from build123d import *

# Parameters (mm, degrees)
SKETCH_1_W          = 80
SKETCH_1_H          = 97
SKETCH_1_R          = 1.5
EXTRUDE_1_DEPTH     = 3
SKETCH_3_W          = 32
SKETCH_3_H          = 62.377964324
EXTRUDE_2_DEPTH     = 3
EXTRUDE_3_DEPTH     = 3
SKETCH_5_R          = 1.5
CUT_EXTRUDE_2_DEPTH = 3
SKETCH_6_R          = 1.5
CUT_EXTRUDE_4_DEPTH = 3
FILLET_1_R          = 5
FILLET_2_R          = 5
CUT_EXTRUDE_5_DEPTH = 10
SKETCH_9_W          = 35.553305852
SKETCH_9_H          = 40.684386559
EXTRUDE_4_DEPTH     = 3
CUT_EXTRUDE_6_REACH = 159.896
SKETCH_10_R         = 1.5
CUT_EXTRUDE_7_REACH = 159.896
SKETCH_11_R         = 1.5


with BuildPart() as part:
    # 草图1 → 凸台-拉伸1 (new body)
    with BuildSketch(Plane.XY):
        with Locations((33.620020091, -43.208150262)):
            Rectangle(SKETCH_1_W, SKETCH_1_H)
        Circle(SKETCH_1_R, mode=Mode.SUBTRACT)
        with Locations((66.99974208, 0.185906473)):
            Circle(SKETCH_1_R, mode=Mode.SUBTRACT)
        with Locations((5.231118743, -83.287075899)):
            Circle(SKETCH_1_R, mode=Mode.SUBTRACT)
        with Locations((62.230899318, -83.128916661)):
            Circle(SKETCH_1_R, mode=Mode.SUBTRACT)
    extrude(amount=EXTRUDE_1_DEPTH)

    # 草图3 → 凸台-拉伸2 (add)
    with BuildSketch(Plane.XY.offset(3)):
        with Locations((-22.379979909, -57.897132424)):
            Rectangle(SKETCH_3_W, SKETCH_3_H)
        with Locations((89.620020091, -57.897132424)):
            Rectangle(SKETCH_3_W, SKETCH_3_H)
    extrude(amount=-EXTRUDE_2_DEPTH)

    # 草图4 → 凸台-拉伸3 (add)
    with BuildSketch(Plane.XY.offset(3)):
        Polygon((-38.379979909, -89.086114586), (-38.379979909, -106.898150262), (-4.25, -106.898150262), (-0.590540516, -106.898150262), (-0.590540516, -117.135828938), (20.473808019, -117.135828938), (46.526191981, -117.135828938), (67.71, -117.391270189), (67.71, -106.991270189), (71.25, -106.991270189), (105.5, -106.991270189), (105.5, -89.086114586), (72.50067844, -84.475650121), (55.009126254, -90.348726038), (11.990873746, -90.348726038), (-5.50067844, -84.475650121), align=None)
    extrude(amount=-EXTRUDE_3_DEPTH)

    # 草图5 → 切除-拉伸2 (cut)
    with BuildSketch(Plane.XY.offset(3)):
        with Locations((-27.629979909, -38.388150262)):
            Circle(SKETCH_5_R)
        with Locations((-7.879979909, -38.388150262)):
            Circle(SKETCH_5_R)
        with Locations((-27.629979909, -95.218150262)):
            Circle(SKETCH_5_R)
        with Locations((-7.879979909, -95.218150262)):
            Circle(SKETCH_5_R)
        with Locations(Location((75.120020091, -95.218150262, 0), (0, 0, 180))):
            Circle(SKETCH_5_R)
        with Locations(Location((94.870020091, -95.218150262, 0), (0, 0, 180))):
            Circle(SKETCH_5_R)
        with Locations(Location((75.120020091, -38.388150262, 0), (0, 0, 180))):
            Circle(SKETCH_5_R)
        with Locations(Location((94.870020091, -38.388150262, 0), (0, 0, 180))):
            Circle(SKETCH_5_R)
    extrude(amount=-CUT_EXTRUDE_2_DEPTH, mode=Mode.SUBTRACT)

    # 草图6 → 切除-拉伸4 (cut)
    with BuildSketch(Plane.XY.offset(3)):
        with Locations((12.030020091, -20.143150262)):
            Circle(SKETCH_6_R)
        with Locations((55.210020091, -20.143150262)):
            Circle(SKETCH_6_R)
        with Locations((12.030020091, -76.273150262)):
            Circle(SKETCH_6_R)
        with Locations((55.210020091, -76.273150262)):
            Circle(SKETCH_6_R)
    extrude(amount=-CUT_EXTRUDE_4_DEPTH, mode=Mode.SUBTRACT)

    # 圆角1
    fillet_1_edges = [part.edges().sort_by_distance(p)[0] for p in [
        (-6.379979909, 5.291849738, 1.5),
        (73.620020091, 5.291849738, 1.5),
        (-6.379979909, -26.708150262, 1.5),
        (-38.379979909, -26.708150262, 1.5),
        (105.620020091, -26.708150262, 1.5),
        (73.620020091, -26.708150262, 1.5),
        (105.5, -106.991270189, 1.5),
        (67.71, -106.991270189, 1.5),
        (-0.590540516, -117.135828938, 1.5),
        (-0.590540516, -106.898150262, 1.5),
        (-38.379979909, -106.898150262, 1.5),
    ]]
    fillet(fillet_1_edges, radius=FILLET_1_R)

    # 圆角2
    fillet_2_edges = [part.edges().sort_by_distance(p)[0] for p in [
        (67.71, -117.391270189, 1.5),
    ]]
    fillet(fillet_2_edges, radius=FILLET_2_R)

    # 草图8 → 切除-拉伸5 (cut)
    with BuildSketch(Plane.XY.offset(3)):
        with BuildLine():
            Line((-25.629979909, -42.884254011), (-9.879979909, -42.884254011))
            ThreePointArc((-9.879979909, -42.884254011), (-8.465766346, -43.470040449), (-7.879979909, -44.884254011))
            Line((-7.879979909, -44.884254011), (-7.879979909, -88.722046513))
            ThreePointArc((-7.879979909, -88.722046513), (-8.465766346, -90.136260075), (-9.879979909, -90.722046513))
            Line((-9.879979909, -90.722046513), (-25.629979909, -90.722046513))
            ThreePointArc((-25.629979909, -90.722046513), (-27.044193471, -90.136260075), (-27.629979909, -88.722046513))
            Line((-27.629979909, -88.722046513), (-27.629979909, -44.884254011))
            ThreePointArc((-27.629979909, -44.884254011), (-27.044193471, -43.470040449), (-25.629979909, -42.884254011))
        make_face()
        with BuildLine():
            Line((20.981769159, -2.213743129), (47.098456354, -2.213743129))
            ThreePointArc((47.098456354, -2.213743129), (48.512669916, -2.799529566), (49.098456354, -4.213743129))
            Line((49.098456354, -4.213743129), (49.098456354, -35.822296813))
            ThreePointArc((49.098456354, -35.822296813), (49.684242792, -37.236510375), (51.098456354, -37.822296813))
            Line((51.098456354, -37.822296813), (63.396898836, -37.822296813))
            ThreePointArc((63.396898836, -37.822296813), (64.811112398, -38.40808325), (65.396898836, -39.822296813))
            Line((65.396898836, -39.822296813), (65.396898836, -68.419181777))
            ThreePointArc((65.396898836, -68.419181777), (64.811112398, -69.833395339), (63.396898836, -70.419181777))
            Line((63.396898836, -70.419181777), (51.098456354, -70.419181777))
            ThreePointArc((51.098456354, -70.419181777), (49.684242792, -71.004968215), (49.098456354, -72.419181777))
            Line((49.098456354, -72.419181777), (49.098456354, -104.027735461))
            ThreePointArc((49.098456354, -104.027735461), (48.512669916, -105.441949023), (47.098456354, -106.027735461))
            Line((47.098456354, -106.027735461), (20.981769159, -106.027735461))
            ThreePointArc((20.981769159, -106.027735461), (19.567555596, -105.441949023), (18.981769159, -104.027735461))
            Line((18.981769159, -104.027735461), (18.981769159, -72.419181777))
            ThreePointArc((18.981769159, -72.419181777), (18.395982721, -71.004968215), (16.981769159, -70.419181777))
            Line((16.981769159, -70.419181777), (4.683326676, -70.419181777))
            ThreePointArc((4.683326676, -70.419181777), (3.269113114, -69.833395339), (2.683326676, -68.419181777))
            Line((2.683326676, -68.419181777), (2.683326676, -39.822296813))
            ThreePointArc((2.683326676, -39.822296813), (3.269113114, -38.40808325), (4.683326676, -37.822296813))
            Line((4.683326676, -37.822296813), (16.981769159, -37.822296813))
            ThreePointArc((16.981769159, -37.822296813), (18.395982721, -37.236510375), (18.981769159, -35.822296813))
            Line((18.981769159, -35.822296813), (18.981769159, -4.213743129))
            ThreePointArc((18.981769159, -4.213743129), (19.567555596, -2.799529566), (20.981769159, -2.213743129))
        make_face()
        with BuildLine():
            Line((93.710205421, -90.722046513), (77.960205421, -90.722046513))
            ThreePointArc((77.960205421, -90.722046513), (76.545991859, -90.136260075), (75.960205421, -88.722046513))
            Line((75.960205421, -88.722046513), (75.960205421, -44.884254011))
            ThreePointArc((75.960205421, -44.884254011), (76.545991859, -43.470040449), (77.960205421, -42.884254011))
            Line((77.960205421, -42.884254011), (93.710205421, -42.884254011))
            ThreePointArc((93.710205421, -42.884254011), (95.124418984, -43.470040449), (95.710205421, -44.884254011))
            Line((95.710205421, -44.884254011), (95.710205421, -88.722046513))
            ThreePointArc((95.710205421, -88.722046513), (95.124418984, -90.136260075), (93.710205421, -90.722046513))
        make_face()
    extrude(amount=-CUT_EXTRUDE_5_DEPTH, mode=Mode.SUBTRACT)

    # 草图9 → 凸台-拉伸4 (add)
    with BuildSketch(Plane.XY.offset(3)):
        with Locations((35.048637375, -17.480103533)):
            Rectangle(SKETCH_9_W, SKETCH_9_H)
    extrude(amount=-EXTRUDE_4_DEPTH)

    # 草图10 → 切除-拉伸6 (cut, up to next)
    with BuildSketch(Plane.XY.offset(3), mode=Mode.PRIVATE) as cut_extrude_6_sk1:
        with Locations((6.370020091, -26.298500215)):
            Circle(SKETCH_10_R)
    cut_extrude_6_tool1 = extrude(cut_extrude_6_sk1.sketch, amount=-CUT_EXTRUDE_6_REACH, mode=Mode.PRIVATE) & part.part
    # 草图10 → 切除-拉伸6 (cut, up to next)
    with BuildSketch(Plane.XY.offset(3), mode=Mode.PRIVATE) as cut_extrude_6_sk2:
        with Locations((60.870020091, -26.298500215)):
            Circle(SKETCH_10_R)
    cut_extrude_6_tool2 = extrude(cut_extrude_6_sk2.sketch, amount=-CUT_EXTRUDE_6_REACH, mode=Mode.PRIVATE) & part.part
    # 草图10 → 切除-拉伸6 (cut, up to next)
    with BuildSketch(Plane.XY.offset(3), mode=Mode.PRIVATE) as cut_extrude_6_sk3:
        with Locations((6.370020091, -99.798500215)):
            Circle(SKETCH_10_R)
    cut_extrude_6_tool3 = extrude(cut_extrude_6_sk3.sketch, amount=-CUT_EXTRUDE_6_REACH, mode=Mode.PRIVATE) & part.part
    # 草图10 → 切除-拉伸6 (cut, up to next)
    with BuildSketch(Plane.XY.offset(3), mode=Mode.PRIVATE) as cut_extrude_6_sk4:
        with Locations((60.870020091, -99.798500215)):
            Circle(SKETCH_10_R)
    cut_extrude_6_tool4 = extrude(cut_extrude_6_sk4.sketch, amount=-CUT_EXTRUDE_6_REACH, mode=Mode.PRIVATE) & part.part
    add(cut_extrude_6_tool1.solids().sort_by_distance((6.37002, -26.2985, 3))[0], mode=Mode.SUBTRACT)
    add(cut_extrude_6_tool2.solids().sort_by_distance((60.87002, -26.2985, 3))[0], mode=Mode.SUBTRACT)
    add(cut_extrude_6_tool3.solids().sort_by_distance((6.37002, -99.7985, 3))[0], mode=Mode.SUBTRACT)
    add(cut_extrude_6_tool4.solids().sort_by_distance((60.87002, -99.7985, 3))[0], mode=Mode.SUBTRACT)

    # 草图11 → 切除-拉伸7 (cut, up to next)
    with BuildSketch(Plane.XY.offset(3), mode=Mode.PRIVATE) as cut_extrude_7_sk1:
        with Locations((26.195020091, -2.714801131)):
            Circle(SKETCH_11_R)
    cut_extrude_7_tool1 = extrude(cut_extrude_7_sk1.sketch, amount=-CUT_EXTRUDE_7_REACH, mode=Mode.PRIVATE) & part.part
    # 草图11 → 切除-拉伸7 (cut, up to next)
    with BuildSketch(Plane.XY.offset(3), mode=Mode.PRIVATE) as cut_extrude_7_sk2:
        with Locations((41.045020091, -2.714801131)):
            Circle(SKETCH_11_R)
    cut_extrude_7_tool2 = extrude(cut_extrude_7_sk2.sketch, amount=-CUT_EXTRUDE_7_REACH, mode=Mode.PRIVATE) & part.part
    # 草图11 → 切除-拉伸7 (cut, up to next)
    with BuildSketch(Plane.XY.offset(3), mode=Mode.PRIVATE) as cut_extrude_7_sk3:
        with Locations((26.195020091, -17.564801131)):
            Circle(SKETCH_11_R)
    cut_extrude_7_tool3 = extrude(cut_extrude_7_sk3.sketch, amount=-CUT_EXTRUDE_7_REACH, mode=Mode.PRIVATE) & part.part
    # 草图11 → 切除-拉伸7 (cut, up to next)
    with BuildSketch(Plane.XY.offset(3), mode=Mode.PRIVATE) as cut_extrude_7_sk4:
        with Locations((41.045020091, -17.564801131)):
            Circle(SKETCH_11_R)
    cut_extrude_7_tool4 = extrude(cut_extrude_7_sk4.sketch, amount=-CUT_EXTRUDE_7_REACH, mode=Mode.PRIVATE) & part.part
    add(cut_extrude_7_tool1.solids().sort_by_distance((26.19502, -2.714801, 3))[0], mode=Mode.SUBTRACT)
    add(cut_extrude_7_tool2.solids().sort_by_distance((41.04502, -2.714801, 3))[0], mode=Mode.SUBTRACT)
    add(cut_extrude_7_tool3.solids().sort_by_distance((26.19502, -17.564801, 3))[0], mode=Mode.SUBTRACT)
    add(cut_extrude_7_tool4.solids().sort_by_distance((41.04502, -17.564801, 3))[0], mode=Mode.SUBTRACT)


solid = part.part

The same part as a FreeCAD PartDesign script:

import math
import FreeCAD as App
import Part
import Sketcher


def edges_at(feature, points):
    """Names of the edges that pass closest to the given points."""
    edges = feature.Shape.Edges
    near = lambda p: min(range(len(edges)), key=lambda i: edges[i].distToShape(Part.Vertex(*p))[0])
    return sorted({f"Edge{near(p) + 1}" for p in points})


def add_polygon(sketch, points):
    """Adds a closed chain of lines whose ends are joined by coincident constraints."""
    first, n = sketch.GeometryCount, len(points)
    for a, b in zip(points, points[1:] + points[:1]):
        sketch.addGeometry(Part.LineSegment(App.Vector(*a, 0), App.Vector(*b, 0)), False)
    for i in range(n):
        sketch.addConstraint(Sketcher.Constraint("Coincident", first + i, 2, first + (i + 1) % n, 1))

doc = App.newDocument("Part")
body = doc.addObject("PartDesign::Body", "Body")

sketch1 = doc.addObject("Sketcher::SketchObject", "Sketch")
body.addObject(sketch1)
sketch1.AttachmentSupport = (doc.XY_Plane, [""])
sketch1.MapMode = "FlatFace"
add_polygon(sketch1, [(-6.4, 5.3), (-6.4, -91.7), (73.6, -91.7), (73.6, 5.3)])
sketch1.addGeometry(Part.Circle(App.Vector(5.2, -83.3, 0), App.Vector(0, 0, 1), 1.5), False)
sketch1.addGeometry(Part.Circle(App.Vector(62.2, -83.1, 0), App.Vector(0, 0, 1), 1.5), False)
sketch1.addGeometry(Part.Circle(App.Vector(0, 0, 0), App.Vector(0, 0, 1), 1.5), False)
sketch1.addGeometry(Part.Circle(App.Vector(67, 0.2, 0), App.Vector(0, 0, 1), 1.5), False)
sketch1.addConstraint([
    Sketcher.Constraint("Vertical", 0),
    Sketcher.Constraint("Horizontal", 1),
    Sketcher.Constraint("Vertical", 2),
    Sketcher.Constraint("Horizontal", 3),
    Sketcher.Constraint("Coincident", 6, 3, -1, 1),
    Sketcher.Constraint("Equal", 4, 5),
    Sketcher.Constraint("Equal", 5, 6),
    Sketcher.Constraint("Equal", 6, 7),
    Sketcher.Constraint("Diameter", 4, 3.0),
    Sketcher.Constraint("DistanceX", 1, 1, 1, 2, 80.0),
    Sketcher.Constraint("DistanceY", 0, 2, 0, 1, 97.0),
    Sketcher.Constraint("DistanceX", -1, 1, 5, 3, 62.230899),
    Sketcher.Constraint("DistanceX", 0, 2, 4, 3, 11.611099),
    Sketcher.Constraint("DistanceX", -1, 1, 4, 3, 5.231119),
    Sketcher.Constraint("DistanceY", 0, 2, -1, 1, 91.70815),
    Sketcher.Constraint("DistanceY", 4, 3, 5, 3, 0.158159),
    Sketcher.Constraint("DistanceX", 0, 2, 7, 3, 73.379722),
    Sketcher.Constraint("DistanceY", 4, 3, -1, 1, 83.287076),
    Sketcher.Constraint("DistanceY", -1, 1, 7, 3, 0.185906),
])
pad1 = doc.addObject("PartDesign::Pad", "Pad")
body.addObject(pad1)
pad1.Profile = sketch1
pad1.Length = 3

sketch2 = doc.addObject("Sketcher::SketchObject", "Sketch001")
body.addObject(sketch2)
sketch2.AttachmentSupport = (doc.XY_Plane, [""])
sketch2.MapMode = "FlatFace"
sketch2.AttachmentOffset = App.Placement(App.Vector(0, 0, 3), App.Rotation())
add_polygon(sketch2, [(-38, -27), (-38, -89), (-6, -89), (-6, -27)])
add_polygon(sketch2, [(74, -27), (74, -89), (106, -89), (106, -27)])
sketch2.addConstraint([
    Sketcher.Constraint("Vertical", 0),
    Sketcher.Constraint("Horizontal", 1),
    Sketcher.Constraint("Vertical", 2),
    Sketcher.Constraint("Horizontal", 3),
    Sketcher.Constraint("Vertical", 4),
    Sketcher.Constraint("Horizontal", 5),
    Sketcher.Constraint("Vertical", 6),
    Sketcher.Constraint("Horizontal", 7),
    Sketcher.Constraint("Horizontal", 1, 2, 4, 2),
    Sketcher.Constraint("Horizontal", 3, 2, 6, 2),
    Sketcher.Constraint("Equal", 3, 5),
    Sketcher.Constraint("DistanceX", 1, 1, 1, 2, 32.0),
    Sketcher.Constraint("DistanceX", 1, 2, 4, 2, 80.0),
    Sketcher.Constraint("DistanceY", 0, 2, 0, 1, 62.377964),
    Sketcher.Constraint("DistanceX", 0, 2, -1, 1, 38.37998),
    Sketcher.Constraint("DistanceY", 2, 2, -1, 1, 26.70815),
])
pad2 = doc.addObject("PartDesign::Pad", "Pad001")
body.addObject(pad2)
pad2.Profile = sketch2
pad2.Length = 3
pad2.Reversed = True

sketch3 = doc.addObject("Sketcher::SketchObject", "Sketch002")
body.addObject(sketch3)
sketch3.AttachmentSupport = (doc.XY_Plane, [""])
sketch3.MapMode = "FlatFace"
sketch3.AttachmentOffset = App.Placement(App.Vector(0, 0, 3), App.Rotation())
add_polygon(sketch3, [(-38, -89), (-38, -107), (-1, -107), (-1, -117), (47, -117), (68, -117), (68, -107), (106, -107), (106, -89), (73, -84), (55, -90), (12, -90), (-6, -84)])
sketch3.addConstraint([
    Sketcher.Constraint("Vertical", 0),
    Sketcher.Constraint("Horizontal", 1),
    Sketcher.Constraint("Vertical", 2),
    Sketcher.Constraint("Horizontal", 3),
    Sketcher.Constraint("Vertical", 5),
    Sketcher.Constraint("Horizontal", 6),
    Sketcher.Constraint("Vertical", 7),
    Sketcher.Constraint("Horizontal", 10),
    Sketcher.Constraint("Horizontal", 8, 2, 11, 2),
    Sketcher.Constraint("Horizontal", 7, 2, 12, 2),
    Sketcher.Constraint("Equal", 9, 11),
    Sketcher.Constraint("DistanceY", 5, 1, 5, 2, 10.4),
    Sketcher.Constraint("DistanceX", 6, 1, 6, 2, 37.79),
    Sketcher.Constraint("DistanceX", -1, 1, 6, 2, 105.5),
    Sketcher.Constraint("DistanceX", 1, 1, 1, 2, 37.789439),
    Sketcher.Constraint("DistanceY", 2, 2, 2, 1, 10.237679),
    Sketcher.Constraint("DistanceY", 1, 2, 11, 2, 22.4225),
    Sketcher.Constraint("DistanceX", 0, 2, 11, 2, 32.879301),
    Sketcher.Constraint("Distance", 4, 21.185348),
    Sketcher.Constraint("Distance", 8, 33.319838),
    Sketcher.Constraint("DistanceX", 3, 1, 3, 2, 47.116732),
    Sketcher.Constraint("DistanceX", 10, 2, 10, 1, 43.018253),
    Sketcher.Constraint("DistanceY", 0, 2, 0, 1, 17.812036),
    Sketcher.Constraint("DistanceY", 7, 1, 7, 2, 17.905156),
    Sketcher.Constraint("DistanceY", 0, 2, -1, 1, 106.89815),
    Sketcher.Constraint("DistanceY", 9, 2, 7, 2, 1.262611),
])
pad3 = doc.addObject("PartDesign::Pad", "Pad002")
body.addObject(pad3)
pad3.Profile = sketch3
pad3.Length = 3
pad3.Reversed = True

sketch4 = doc.addObject("Sketcher::SketchObject", "Sketch003")
body.addObject(sketch4)
sketch4.AttachmentSupport = (doc.XY_Plane, [""])
sketch4.MapMode = "FlatFace"
sketch4.AttachmentOffset = App.Placement(App.Vector(0, 0, 3), App.Rotation())
sketch4.addGeometry([
    Part.Circle(App.Vector(-27.6, -38.4, 0), App.Vector(0, 0, 1), 1.5),
    Part.Circle(App.Vector(-7.9, -38.4, 0), App.Vector(0, 0, 1), 1.5),
    Part.Circle(App.Vector(-27.6, -95.2, 0), App.Vector(0, 0, 1), 1.5),
    Part.Circle(App.Vector(-7.9, -95.2, 0), App.Vector(0, 0, 1), 1.5),
    Part.Circle(App.Vector(75.1, -95.2, 0), App.Vector(0, 0, 1), 1.5),
    Part.Circle(App.Vector(94.9, -95.2, 0), App.Vector(0, 0, 1), 1.5),
    Part.Circle(App.Vector(75.1, -38.4, 0), App.Vector(0, 0, 1), 1.5),
    Part.Circle(App.Vector(94.9, -38.4, 0), App.Vector(0, 0, 1), 1.5),
], False)
sketch4.addConstraint([
    Sketcher.Constraint("Equal", 0, 1),
    Sketcher.Constraint("Equal", 1, 2),
    Sketcher.Constraint("Equal", 2, 3),
    Sketcher.Constraint("Equal", 3, 4),
    Sketcher.Constraint("Equal", 4, 5),
    Sketcher.Constraint("Equal", 5, 6),
    Sketcher.Constraint("Equal", 6, 7),
    Sketcher.Constraint("Horizontal", 0, 3, 1, 3),
    Sketcher.Constraint("Horizontal", 2, 3, 3, 3),
    Sketcher.Constraint("Horizontal", 3, 3, 4, 3),
    Sketcher.Constraint("Horizontal", 4, 3, 5, 3),
    Sketcher.Constraint("Horizontal", 1, 3, 6, 3),
    Sketcher.Constraint("Horizontal", 6, 3, 7, 3),
    Sketcher.Constraint("Vertical", 0, 3, 2, 3),
    Sketcher.Constraint("Vertical", 1, 3, 3, 3),
    Sketcher.Constraint("Vertical", 4, 3, 6, 3),
    Sketcher.Constraint("Vertical", 5, 3, 7, 3),
    Sketcher.Constraint("Diameter", 0, 3.0),
    Sketcher.Constraint("DistanceX", 3, 3, 4, 3, 83.0),
    Sketcher.Constraint("DistanceX", 2, 3, 5, 3, 122.5),
    Sketcher.Constraint("DistanceX", 0, 3, 1, 3, 19.75),
    Sketcher.Constraint("DistanceY", 2, 3, 0, 3, 56.83),
    Sketcher.Constraint("DistanceX", 0, 3, -1, 1, 27.62998),
    Sketcher.Constraint("DistanceY", 0, 3, -1, 1, 38.38815),
])
pocket1 = doc.addObject("PartDesign::Pocket", "Pocket")
body.addObject(pocket1)
pocket1.Profile = sketch4
pocket1.Length = 3

sketch5 = doc.addObject("Sketcher::SketchObject", "Sketch004")
body.addObject(sketch5)
sketch5.AttachmentSupport = (doc.XY_Plane, [""])
sketch5.MapMode = "FlatFace"
sketch5.AttachmentOffset = App.Placement(App.Vector(0, 0, 3), App.Rotation())
sketch5.addGeometry([
    Part.Circle(App.Vector(12, -20.1, 0), App.Vector(0, 0, 1), 1.5),
    Part.Circle(App.Vector(55.2, -20.1, 0), App.Vector(0, 0, 1), 1.5),
    Part.Circle(App.Vector(12, -76.3, 0), App.Vector(0, 0, 1), 1.5),
    Part.Circle(App.Vector(55.2, -76.3, 0), App.Vector(0, 0, 1), 1.5),
], False)
sketch5.addConstraint([
    Sketcher.Constraint("Equal", 0, 1),
    Sketcher.Constraint("Equal", 1, 2),
    Sketcher.Constraint("Equal", 2, 3),
    Sketcher.Constraint("Horizontal", 0, 3, 1, 3),
    Sketcher.Constraint("Horizontal", 2, 3, 3, 3),
    Sketcher.Constraint("Vertical", 0, 3, 2, 3),
    Sketcher.Constraint("Vertical", 1, 3, 3, 3),
    Sketcher.Constraint("Diameter", 0, 3.0),
    Sketcher.Constraint("DistanceX", 0, 3, 1, 3, 43.18),
    Sketcher.Constraint("DistanceY", 2, 3, 0, 3, 56.13),
    Sketcher.Constraint("DistanceX", -1, 1, 0, 3, 12.03002),
    Sketcher.Constraint("DistanceY", 0, 3, -1, 1, 20.14315),
])
pocket2 = doc.addObject("PartDesign::Pocket", "Pocket001")
body.addObject(pocket2)
pocket2.Profile = sketch5
pocket2.Length = 3
doc.recompute()

fillet = doc.addObject("PartDesign::Fillet", "Fillet")
body.addObject(fillet)
fillet.Base = (pocket2, edges_at(pocket2, [
    (-6.38, 5.292, 1.5),
    (73.62, 5.292, 1.5),
    (-6.38, -26.708, 1.5),
    (-38.38, -26.708, 1.5),
    (105.62, -26.708, 1.5),
    (73.62, -26.708, 1.5),
    (105.5, -106.991, 1.5),
    (67.71, -106.991, 1.5),
    (-0.591, -117.136, 1.5),
    (-0.591, -106.898, 1.5),
    (-38.38, -106.898, 1.5),
]))
fillet.Radius = 5
doc.recompute()

fillet2 = doc.addObject("PartDesign::Fillet", "Fillet001")
body.addObject(fillet2)
fillet2.Base = (fillet, edges_at(fillet, [(67.71, -117.391, 1.5)]))
fillet2.Radius = 5

sketch6 = doc.addObject("Sketcher::SketchObject", "Sketch005")
body.addObject(sketch6)
sketch6.AttachmentSupport = (doc.XY_Plane, [""])
sketch6.MapMode = "FlatFace"
sketch6.AttachmentOffset = App.Placement(App.Vector(0, 0, 3), App.Rotation())
sketch6.addGeometry([
    Part.LineSegment(App.Vector(-9.9, -42.9, 0), App.Vector(-25.6, -42.9, 0)),
    Part.ArcOfCircle(Part.Circle(App.Vector(-25.6, -44.9, 0), App.Vector(0, 0, 1), 2), math.radians(90), math.radians(180)),
    Part.LineSegment(App.Vector(-27.6, -44.9, 0), App.Vector(-27.6, -88.7, 0)),
    Part.ArcOfCircle(Part.Circle(App.Vector(-25.6, -88.7, 0), App.Vector(0, 0, 1), 2), math.radians(-180), math.radians(-90)),
    Part.LineSegment(App.Vector(-25.6, -90.7, 0), App.Vector(-9.9, -90.7, 0)),
    Part.ArcOfCircle(Part.Circle(App.Vector(-9.9, -88.7, 0), App.Vector(0, 0, 1), 2), math.radians(-90), math.radians(0)),
    Part.LineSegment(App.Vector(-7.9, -88.7, 0), App.Vector(-7.9, -44.9, 0)),
    Part.ArcOfCircle(Part.Circle(App.Vector(-9.9, -44.9, 0), App.Vector(0, 0, 1), 2), math.radians(0), math.radians(90)),
    Part.LineSegment(App.Vector(47.1, -2.2, 0), App.Vector(21, -2.2, 0)),
    Part.ArcOfCircle(Part.Circle(App.Vector(21, -4.2, 0), App.Vector(0, 0, 1), 2), math.radians(90), math.radians(180)),
    Part.LineSegment(App.Vector(19, -4.2, 0), App.Vector(19, -35.8, 0)),
    Part.ArcOfCircle(Part.Circle(App.Vector(17, -35.8, 0), App.Vector(0, 0, 1), 2), math.radians(-90), math.radians(0)),
    Part.LineSegment(App.Vector(17, -37.8, 0), App.Vector(4.7, -37.8, 0)),
    Part.ArcOfCircle(Part.Circle(App.Vector(4.7, -39.8, 0), App.Vector(0, 0, 1), 2), math.radians(90), math.radians(180)),
    Part.LineSegment(App.Vector(2.7, -39.8, 0), App.Vector(2.7, -68.4, 0)),
    Part.ArcOfCircle(Part.Circle(App.Vector(4.7, -68.4, 0), App.Vector(0, 0, 1), 2), math.radians(-180), math.radians(-90)),
    Part.LineSegment(App.Vector(4.7, -70.4, 0), App.Vector(17, -70.4, 0)),
    Part.ArcOfCircle(Part.Circle(App.Vector(17, -72.4, 0), App.Vector(0, 0, 1), 2), math.radians(0), math.radians(90)),
    Part.LineSegment(App.Vector(19, -72.4, 0), App.Vector(19, -104, 0)),
    Part.ArcOfCircle(Part.Circle(App.Vector(21, -104, 0), App.Vector(0, 0, 1), 2), math.radians(180), math.radians(270)),
    Part.LineSegment(App.Vector(21, -106, 0), App.Vector(47.1, -106, 0)),
    Part.ArcOfCircle(Part.Circle(App.Vector(47.1, -104, 0), App.Vector(0, 0, 1), 2), math.radians(-90), math.radians(0)),
    Part.LineSegment(App.Vector(49.1, -104, 0), App.Vector(49.1, -72.4, 0)),
    Part.ArcOfCircle(Part.Circle(App.Vector(51.1, -72.4, 0), App.Vector(0, 0, 1), 2), math.radians(90), math.radians(180)),
    Part.LineSegment(App.Vector(51.1, -70.4, 0), App.Vector(63.4, -70.4, 0)),
    Part.ArcOfCircle(Part.Circle(App.Vector(63.4, -68.4, 0), App.Vector(0, 0, 1), 2), math.radians(-90), math.radians(0)),
    Part.LineSegment(App.Vector(65.4, -68.4, 0), App.Vector(65.4, -39.8, 0)),
    Part.ArcOfCircle(Part.Circle(App.Vector(63.4, -39.8, 0), App.Vector(0, 0, 1), 2), math.radians(0), math.radians(90)),
    Part.LineSegment(App.Vector(63.4, -37.8, 0), App.Vector(51.1, -37.8, 0)),
    Part.ArcOfCircle(Part.Circle(App.Vector(51.1, -35.8, 0), App.Vector(0, 0, 1), 2), math.radians(-180), math.radians(-90)),
    Part.LineSegment(App.Vector(49.1, -35.8, 0), App.Vector(49.1, -4.2, 0)),
    Part.ArcOfCircle(Part.Circle(App.Vector(47.1, -4.2, 0), App.Vector(0, 0, 1), 2), math.radians(0), math.radians(90)),
    Part.LineSegment(App.Vector(78, -90.7, 0), App.Vector(93.7, -90.7, 0)),
    Part.ArcOfCircle(Part.Circle(App.Vector(93.7, -88.7, 0), App.Vector(0, 0, 1), 2), math.radians(-90), math.radians(0)),
    Part.LineSegment(App.Vector(95.7, -88.7, 0), App.Vector(95.7, -44.9, 0)),
    Part.ArcOfCircle(Part.Circle(App.Vector(93.7, -44.9, 0), App.Vector(0, 0, 1), 2), math.radians(0), math.radians(90)),
    Part.LineSegment(App.Vector(93.7, -42.9, 0), App.Vector(78, -42.9, 0)),
    Part.ArcOfCircle(Part.Circle(App.Vector(78, -44.9, 0), App.Vector(0, 0, 1), 2), math.radians(90), math.radians(180)),
    Part.LineSegment(App.Vector(76, -44.9, 0), App.Vector(76, -88.7, 0)),
    Part.ArcOfCircle(Part.Circle(App.Vector(78, -88.7, 0), App.Vector(0, 0, 1), 2), math.radians(-180), math.radians(-90)),
], False)
sketch6.addConstraint([
    Sketcher.Constraint("Tangent", 0, 2, 1, 1),
    Sketcher.Constraint("Tangent", 1, 2, 2, 1),
    Sketcher.Constraint("Tangent", 2, 2, 3, 1),
    Sketcher.Constraint("Tangent", 3, 2, 4, 1),
    Sketcher.Constraint("Tangent", 4, 2, 5, 1),
    Sketcher.Constraint("Tangent", 5, 2, 6, 1),
    Sketcher.Constraint("Tangent", 6, 2, 7, 1),
    Sketcher.Constraint("Tangent", 7, 2, 0, 1),
    Sketcher.Constraint("Tangent", 8, 2, 9, 1),
    Sketcher.Constraint("Tangent", 9, 2, 10, 1),
    Sketcher.Constraint("Tangent", 10, 2, 11, 2),
    Sketcher.Constraint("Tangent", 11, 1, 12, 1),
    Sketcher.Constraint("Tangent", 12, 2, 13, 1),
    Sketcher.Constraint("Tangent", 13, 2, 14, 1),
    Sketcher.Constraint("Tangent", 14, 2, 15, 1),
    Sketcher.Constraint("Tangent", 15, 2, 16, 1),
    Sketcher.Constraint("Tangent", 16, 2, 17, 2),
    Sketcher.Constraint("Tangent", 17, 1, 18, 1),
    Sketcher.Constraint("Tangent", 18, 2, 19, 1),
    Sketcher.Constraint("Tangent", 19, 2, 20, 1),
    Sketcher.Constraint("Tangent", 20, 2, 21, 1),
    Sketcher.Constraint("Tangent", 21, 2, 22, 1),
    Sketcher.Constraint("Tangent", 22, 2, 23, 2),
    Sketcher.Constraint("Tangent", 23, 1, 24, 1),
    Sketcher.Constraint("Tangent", 24, 2, 25, 1),
    Sketcher.Constraint("Tangent", 25, 2, 26, 1),
    Sketcher.Constraint("Tangent", 26, 2, 27, 1),
    Sketcher.Constraint("Tangent", 27, 2, 28, 1),
    Sketcher.Constraint("Tangent", 28, 2, 29, 2),
    Sketcher.Constraint("Tangent", 29, 1, 30, 1),
    Sketcher.Constraint("Tangent", 30, 2, 31, 1),
    Sketcher.Constraint("Tangent", 31, 2, 8, 1),
    Sketcher.Constraint("Tangent", 32, 2, 33, 1),
    Sketcher.Constraint("Tangent", 33, 2, 34, 1),
    Sketcher.Constraint("Tangent", 34, 2, 35, 1),
    Sketcher.Constraint("Tangent", 35, 2, 36, 1),
    Sketcher.Constraint("Tangent", 36, 2, 37, 1),
    Sketcher.Constraint("Tangent", 37, 2, 38, 1),
    Sketcher.Constraint("Tangent", 38, 2, 39, 1),
    Sketcher.Constraint("Tangent", 39, 2, 32, 1),
    Sketcher.Constraint("Horizontal", 0),
    Sketcher.Constraint("Vertical", 2),
    Sketcher.Constraint("Horizontal", 4),
    Sketcher.Constraint("Vertical", 6),
    Sketcher.Constraint("Horizontal", 8),
    Sketcher.Constraint("Vertical", 10),
    Sketcher.Constraint("Horizontal", 12),
    Sketcher.Constraint("Vertical", 14),
    Sketcher.Constraint("Horizontal", 16),
    Sketcher.Constraint("Vertical", 18),
    Sketcher.Constraint("Horizontal", 20),
    Sketcher.Constraint("Vertical", 22),
    Sketcher.Constraint("Horizontal", 24),
    Sketcher.Constraint("Vertical", 26),
    Sketcher.Constraint("Horizontal", 28),
    Sketcher.Constraint("Vertical", 30),
    Sketcher.Constraint("Horizontal", 32),
    Sketcher.Constraint("Vertical", 34),
    Sketcher.Constraint("Horizontal", 36),
    Sketcher.Constraint("Vertical", 38),
    Sketcher.Constraint("Equal", 1, 3),
    Sketcher.Constraint("Equal", 3, 5),
    Sketcher.Constraint("Equal", 5, 7),
    Sketcher.Constraint("Equal", 7, 9),
    Sketcher.Constraint("Equal", 9, 11),
    Sketcher.Constraint("Equal", 11, 13),
    Sketcher.Constraint("Equal", 13, 15),
    Sketcher.Constraint("Equal", 15, 17),
    Sketcher.Constraint("Equal", 17, 19),
    Sketcher.Constraint("Equal", 19, 21),
    Sketcher.Constraint("Equal", 21, 23),
    Sketcher.Constraint("Equal", 23, 25),
    Sketcher.Constraint("Equal", 25, 27),
    Sketcher.Constraint("Equal", 27, 29),
    Sketcher.Constraint("Equal", 29, 31),
    Sketcher.Constraint("Equal", 31, 33),
    Sketcher.Constraint("Equal", 33, 35),
    Sketcher.Constraint("Equal", 35, 37),
    Sketcher.Constraint("Equal", 37, 39),
    Sketcher.Constraint("Horizontal", 17, 3, 23, 3),
    Sketcher.Constraint("Horizontal", 13, 3, 27, 3),
    Sketcher.Constraint("Horizontal", 5, 3, 33, 3),
    Sketcher.Constraint("Horizontal", 7, 3, 35, 3),
    Sketcher.Constraint("Vertical", 11, 3, 17, 3),
    Sketcher.Constraint("Vertical", 23, 3, 29, 3),
    Sketcher.Constraint("Equal", 16, 24),
    Sketcher.Constraint("Equal", 4, 32),
    Sketcher.Constraint("Equal", 10, 18),
    Sketcher.Constraint("Radius", 1, 2.0),
    Sketcher.Constraint("DistanceX", 0, 2, 0, 1, 15.75),
    Sketcher.Constraint("DistanceX", -1, 1, 25, 3, 63.396899),
    Sketcher.Constraint("DistanceX", 8, 2, 8, 1, 26.116687),
    Sketcher.Constraint("DistanceX", 12, 2, 12, 1, 12.298442),
    Sketcher.Constraint("DistanceY", 2, 2, 2, 1, 43.837793),
    Sketcher.Constraint("DistanceY", 10, 2, 10, 1, 31.608554),
    Sketcher.Constraint("DistanceY", 14, 2, 14, 1, 28.596885),
    Sketcher.Constraint("DistanceX", 1, 3, -1, 1, 25.62998),
    Sketcher.Constraint("DistanceY", 15, 3, -1, 1, 68.419182),
    Sketcher.Constraint("DistanceY", 7, 3, 9, 3, 40.670511),
    Sketcher.Constraint("DistanceX", 23, 3, 33, 3, 42.611749),
])
pocket3 = doc.addObject("PartDesign::Pocket", "Pocket002")
body.addObject(pocket3)
pocket3.Profile = sketch6
pocket3.Length = 10

sketch7 = doc.addObject("Sketcher::SketchObject", "Sketch006")
body.addObject(sketch7)
sketch7.AttachmentSupport = (doc.XY_Plane, [""])
sketch7.MapMode = "FlatFace"
sketch7.AttachmentOffset = App.Placement(App.Vector(0, 0, 3), App.Rotation())
add_polygon(sketch7, [(17, 3), (17, -38), (53, -38), (53, 3)])
sketch7.addConstraint([
    Sketcher.Constraint("Vertical", 0),
    Sketcher.Constraint("Horizontal", 1),
    Sketcher.Constraint("Vertical", 2),
    Sketcher.Constraint("Horizontal", 3),
    Sketcher.Constraint("DistanceX", 1, 1, 1, 2, 35.553306),
    Sketcher.Constraint("DistanceY", 0, 2, 0, 1, 40.684387),
    Sketcher.Constraint("DistanceX", -1, 1, 1, 2, 52.82529),
    Sketcher.Constraint("DistanceY", -1, 1, 2, 2, 2.86209),
])
pad4 = doc.addObject("PartDesign::Pad", "Pad003")
body.addObject(pad4)
pad4.Profile = sketch7
pad4.Length = 3
pad4.Reversed = True

sketch8 = doc.addObject("Sketcher::SketchObject", "Sketch007")
body.addObject(sketch8)
sketch8.AttachmentSupport = (doc.XY_Plane, [""])
sketch8.MapMode = "FlatFace"
sketch8.AttachmentOffset = App.Placement(App.Vector(0, 0, 3), App.Rotation())
sketch8.addGeometry(Part.Circle(App.Vector(6.4, -26.3, 0), App.Vector(0, 0, 1), 1.5), False)
sketch8.addConstraint([
    Sketcher.Constraint("Diameter", 0, 3.0),
    Sketcher.Constraint("DistanceY", 0, 3, -1, 1, 26.2985),
    Sketcher.Constraint("DistanceX", -1, 1, 0, 3, 6.37002),
])
pocket4 = doc.addObject("PartDesign::Pocket", "Pocket003")
body.addObject(pocket4)
pocket4.Profile = sketch8
pocket4.Type = "UpToFirst"

sketch9 = doc.addObject("Sketcher::SketchObject", "Sketch008")
body.addObject(sketch9)
sketch9.AttachmentSupport = (doc.XY_Plane, [""])
sketch9.MapMode = "FlatFace"
sketch9.AttachmentOffset = App.Placement(App.Vector(0, 0, 3), App.Rotation())
sketch9.addGeometry(Part.Circle(App.Vector(60.9, -26.3, 0), App.Vector(0, 0, 1), 1.5), False)
sketch9.addConstraint([
    Sketcher.Constraint("Diameter", 0, 3.0),
    Sketcher.Constraint("DistanceY", 0, 3, -1, 1, 26.2985),
    Sketcher.Constraint("DistanceX", -1, 1, 0, 3, 60.87002),
])
pocket5 = doc.addObject("PartDesign::Pocket", "Pocket004")
body.addObject(pocket5)
pocket5.Profile = sketch9
pocket5.Type = "UpToFirst"

sketch10 = doc.addObject("Sketcher::SketchObject", "Sketch009")
body.addObject(sketch10)
sketch10.AttachmentSupport = (doc.XY_Plane, [""])
sketch10.MapMode = "FlatFace"
sketch10.AttachmentOffset = App.Placement(App.Vector(0, 0, 3), App.Rotation())
sketch10.addGeometry(Part.Circle(App.Vector(6.4, -99.8, 0), App.Vector(0, 0, 1), 1.5), False)
sketch10.addConstraint([
    Sketcher.Constraint("Diameter", 0, 3.0),
    Sketcher.Constraint("DistanceY", 0, 3, -1, 1, 99.7985),
    Sketcher.Constraint("DistanceX", -1, 1, 0, 3, 6.37002),
])
pocket6 = doc.addObject("PartDesign::Pocket", "Pocket005")
body.addObject(pocket6)
pocket6.Profile = sketch10
pocket6.Type = "UpToFirst"

sketch11 = doc.addObject("Sketcher::SketchObject", "Sketch010")
body.addObject(sketch11)
sketch11.AttachmentSupport = (doc.XY_Plane, [""])
sketch11.MapMode = "FlatFace"
sketch11.AttachmentOffset = App.Placement(App.Vector(0, 0, 3), App.Rotation())
sketch11.addGeometry(Part.Circle(App.Vector(60.9, -99.8, 0), App.Vector(0, 0, 1), 1.5), False)
sketch11.addConstraint([
    Sketcher.Constraint("Diameter", 0, 3.0),
    Sketcher.Constraint("DistanceY", 0, 3, -1, 1, 99.7985),
    Sketcher.Constraint("DistanceX", -1, 1, 0, 3, 60.87002),
])
pocket7 = doc.addObject("PartDesign::Pocket", "Pocket006")
body.addObject(pocket7)
pocket7.Profile = sketch11
pocket7.Type = "UpToFirst"

sketch12 = doc.addObject("Sketcher::SketchObject", "Sketch011")
body.addObject(sketch12)
sketch12.AttachmentSupport = (doc.XY_Plane, [""])
sketch12.MapMode = "FlatFace"
sketch12.AttachmentOffset = App.Placement(App.Vector(0, 0, 3), App.Rotation())
sketch12.addGeometry(Part.Circle(App.Vector(26.2, -2.7, 0), App.Vector(0, 0, 1), 1.5), False)
sketch12.addConstraint([
    Sketcher.Constraint("Diameter", 0, 3.0),
    Sketcher.Constraint("DistanceY", 0, 3, -1, 1, 2.714801),
    Sketcher.Constraint("DistanceX", -1, 1, 0, 3, 26.19502),
])
pocket8 = doc.addObject("PartDesign::Pocket", "Pocket007")
body.addObject(pocket8)
pocket8.Profile = sketch12
pocket8.Type = "UpToFirst"

sketch13 = doc.addObject("Sketcher::SketchObject", "Sketch012")
body.addObject(sketch13)
sketch13.AttachmentSupport = (doc.XY_Plane, [""])
sketch13.MapMode = "FlatFace"
sketch13.AttachmentOffset = App.Placement(App.Vector(0, 0, 3), App.Rotation())
sketch13.addGeometry(Part.Circle(App.Vector(41, -2.7, 0), App.Vector(0, 0, 1), 1.5), False)
sketch13.addConstraint([
    Sketcher.Constraint("Diameter", 0, 3.0),
    Sketcher.Constraint("DistanceY", 0, 3, -1, 1, 2.714801),
    Sketcher.Constraint("DistanceX", -1, 1, 0, 3, 41.04502),
])
pocket9 = doc.addObject("PartDesign::Pocket", "Pocket008")
body.addObject(pocket9)
pocket9.Profile = sketch13
pocket9.Type = "UpToFirst"

sketch14 = doc.addObject("Sketcher::SketchObject", "Sketch013")
body.addObject(sketch14)
sketch14.AttachmentSupport = (doc.XY_Plane, [""])
sketch14.MapMode = "FlatFace"
sketch14.AttachmentOffset = App.Placement(App.Vector(0, 0, 3), App.Rotation())
sketch14.addGeometry(Part.Circle(App.Vector(26.2, -17.6, 0), App.Vector(0, 0, 1), 1.5), False)
sketch14.addConstraint([
    Sketcher.Constraint("Diameter", 0, 3.0),
    Sketcher.Constraint("DistanceY", 0, 3, -1, 1, 17.564801),
    Sketcher.Constraint("DistanceX", -1, 1, 0, 3, 26.19502),
])
pocket10 = doc.addObject("PartDesign::Pocket", "Pocket009")
body.addObject(pocket10)
pocket10.Profile = sketch14
pocket10.Type = "UpToFirst"

sketch15 = doc.addObject("Sketcher::SketchObject", "Sketch014")
body.addObject(sketch15)
sketch15.AttachmentSupport = (doc.XY_Plane, [""])
sketch15.MapMode = "FlatFace"
sketch15.AttachmentOffset = App.Placement(App.Vector(0, 0, 3), App.Rotation())
sketch15.addGeometry(Part.Circle(App.Vector(41, -17.6, 0), App.Vector(0, 0, 1), 1.5), False)
sketch15.addConstraint([
    Sketcher.Constraint("Diameter", 0, 3.0),
    Sketcher.Constraint("DistanceY", 0, 3, -1, 1, 17.564801),
    Sketcher.Constraint("DistanceX", -1, 1, 0, 3, 41.04502),
])
pocket11 = doc.addObject("PartDesign::Pocket", "Pocket010")
body.addObject(pocket11)
pocket11.Profile = sketch15
pocket11.Type = "UpToFirst"

doc.recompute()
